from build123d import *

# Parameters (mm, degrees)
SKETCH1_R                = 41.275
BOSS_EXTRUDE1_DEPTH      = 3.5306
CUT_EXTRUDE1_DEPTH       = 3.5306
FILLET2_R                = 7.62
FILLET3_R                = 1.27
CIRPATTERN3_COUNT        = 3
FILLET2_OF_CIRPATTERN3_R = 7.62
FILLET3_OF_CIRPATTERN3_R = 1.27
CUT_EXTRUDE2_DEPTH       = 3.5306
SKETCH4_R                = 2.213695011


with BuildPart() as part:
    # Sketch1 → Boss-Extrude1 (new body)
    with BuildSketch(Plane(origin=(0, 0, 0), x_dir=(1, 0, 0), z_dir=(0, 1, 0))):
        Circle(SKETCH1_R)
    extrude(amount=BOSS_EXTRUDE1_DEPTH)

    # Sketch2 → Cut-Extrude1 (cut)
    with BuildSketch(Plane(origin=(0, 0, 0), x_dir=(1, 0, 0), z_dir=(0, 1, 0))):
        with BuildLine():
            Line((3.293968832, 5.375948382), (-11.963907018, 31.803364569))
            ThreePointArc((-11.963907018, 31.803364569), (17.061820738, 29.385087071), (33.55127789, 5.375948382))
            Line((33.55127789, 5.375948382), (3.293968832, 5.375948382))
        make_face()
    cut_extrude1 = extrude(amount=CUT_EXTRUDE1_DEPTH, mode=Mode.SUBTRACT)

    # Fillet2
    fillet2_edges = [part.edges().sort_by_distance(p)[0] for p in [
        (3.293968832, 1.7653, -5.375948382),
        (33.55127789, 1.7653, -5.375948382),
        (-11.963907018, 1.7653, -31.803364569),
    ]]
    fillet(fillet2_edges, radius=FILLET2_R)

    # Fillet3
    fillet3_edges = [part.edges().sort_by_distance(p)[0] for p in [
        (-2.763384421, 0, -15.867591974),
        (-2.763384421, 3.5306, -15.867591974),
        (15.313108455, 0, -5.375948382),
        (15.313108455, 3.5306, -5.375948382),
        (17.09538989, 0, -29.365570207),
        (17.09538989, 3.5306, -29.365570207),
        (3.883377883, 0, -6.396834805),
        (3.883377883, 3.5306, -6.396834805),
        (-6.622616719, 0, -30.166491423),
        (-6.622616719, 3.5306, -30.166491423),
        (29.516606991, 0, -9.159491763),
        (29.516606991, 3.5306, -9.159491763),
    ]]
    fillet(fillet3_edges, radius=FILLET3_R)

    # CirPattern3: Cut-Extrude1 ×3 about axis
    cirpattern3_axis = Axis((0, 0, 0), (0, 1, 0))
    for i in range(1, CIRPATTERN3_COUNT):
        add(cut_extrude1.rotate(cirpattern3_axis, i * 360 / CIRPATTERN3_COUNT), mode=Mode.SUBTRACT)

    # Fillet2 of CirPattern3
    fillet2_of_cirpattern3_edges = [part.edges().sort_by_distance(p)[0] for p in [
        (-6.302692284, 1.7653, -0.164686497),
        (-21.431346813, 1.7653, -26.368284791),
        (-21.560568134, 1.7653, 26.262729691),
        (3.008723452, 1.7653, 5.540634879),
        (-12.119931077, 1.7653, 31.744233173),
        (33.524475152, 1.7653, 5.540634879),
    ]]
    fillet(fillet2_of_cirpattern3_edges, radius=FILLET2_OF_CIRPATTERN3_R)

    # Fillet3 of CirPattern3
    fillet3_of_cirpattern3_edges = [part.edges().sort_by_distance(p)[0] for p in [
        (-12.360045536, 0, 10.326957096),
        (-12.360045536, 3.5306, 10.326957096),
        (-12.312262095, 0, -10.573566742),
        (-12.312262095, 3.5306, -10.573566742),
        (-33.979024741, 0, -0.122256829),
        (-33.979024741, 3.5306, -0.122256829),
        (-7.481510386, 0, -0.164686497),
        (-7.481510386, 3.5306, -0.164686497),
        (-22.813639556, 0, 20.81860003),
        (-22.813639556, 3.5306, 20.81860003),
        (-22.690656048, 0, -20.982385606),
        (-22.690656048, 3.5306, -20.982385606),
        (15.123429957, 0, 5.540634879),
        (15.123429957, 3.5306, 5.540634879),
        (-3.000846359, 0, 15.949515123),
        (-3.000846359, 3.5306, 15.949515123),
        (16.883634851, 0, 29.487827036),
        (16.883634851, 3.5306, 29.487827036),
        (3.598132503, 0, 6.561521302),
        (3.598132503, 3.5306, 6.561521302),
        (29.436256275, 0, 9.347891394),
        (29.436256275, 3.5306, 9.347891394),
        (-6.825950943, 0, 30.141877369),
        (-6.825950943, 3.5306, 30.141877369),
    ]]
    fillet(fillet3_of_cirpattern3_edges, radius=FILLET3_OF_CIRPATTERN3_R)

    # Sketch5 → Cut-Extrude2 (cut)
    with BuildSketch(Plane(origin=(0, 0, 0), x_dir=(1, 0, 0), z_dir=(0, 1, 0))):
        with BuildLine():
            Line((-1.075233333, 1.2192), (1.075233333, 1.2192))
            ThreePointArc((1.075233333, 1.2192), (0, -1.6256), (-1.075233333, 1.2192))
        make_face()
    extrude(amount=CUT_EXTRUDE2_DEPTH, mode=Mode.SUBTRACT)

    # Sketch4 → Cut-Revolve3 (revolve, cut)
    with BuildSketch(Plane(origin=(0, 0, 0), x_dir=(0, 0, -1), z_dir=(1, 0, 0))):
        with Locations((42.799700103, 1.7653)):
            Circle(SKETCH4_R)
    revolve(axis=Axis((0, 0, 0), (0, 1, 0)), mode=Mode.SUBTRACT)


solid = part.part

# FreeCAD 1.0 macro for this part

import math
import FreeCAD as App
import Part
import Sketcher
from FreeCAD import Vector
Q = App.Units.Quantity


def edges_at(feature, points):
    """Names of the edges that pass closest to the given points."""
    edges = feature.Shape.Edges
    near = lambda p: min(range(len(edges)), key=lambda i: edges[i].distToShape(Part.Vertex(*p))[0])
    return sorted({f"Edge{near(p) + 1}" for p in points})

doc = App.newDocument("Part")
body = doc.addObject("PartDesign::Body", "Body")

# Sketch on XZ plane
sketch1 = body.newObject("Sketcher::SketchObject", "Sketch")
sketch1.AttachmentSupport = (doc.getObject("XZ_Plane"), [""])
sketch1.MapMode = "FlatFace"
sketch1.addGeometry(Part.Circle(Vector(0, 0, 0), Vector(0, 0, 1), 41), False)
sketch1.addConstraint(Sketcher.Constraint("Coincident", 0, 3, -1, 1))
sketch1.addConstraint(Sketcher.Constraint("Diameter", 0, Q("3.25 in")))
pad1 = body.newObject("PartDesign::Pad", "Pad")
pad1.Profile = sketch1
pad1.Length = Q("0.139 in")
pad1.Reversed = True

# Sketch on XZ plane
sketch2 = body.newObject("Sketcher::SketchObject", "Sketch001")
sketch2.AttachmentSupport = (doc.getObject("XZ_Plane"), [""])
sketch2.MapMode = "FlatFace"
sketch2.addGeometry(Part.LineSegment(Vector(-12, -32, 0), Vector(3, -5, 0)), False)
sketch2.addGeometry(Part.LineSegment(Vector(3, -5, 0), Vector(34, -5, 0)), False)
sketch2.addGeometry(Part.ArcOfCircle(Part.Circle(Vector(0, 0, 0), Vector(0, 0, 1), 34), math.radians(-111), math.radians(-9)), False)
sketch2.addConstraint(Sketcher.Constraint("Coincident", 0, 2, 1, 1))
sketch2.addConstraint(Sketcher.Constraint("Coincident", 1, 2, 2, 2))
sketch2.addConstraint(Sketcher.Constraint("Coincident", 2, 1, 0, 1))
sketch2.addConstraint(Sketcher.Constraint("Horizontal", 1))
sketch2.addConstraint(Sketcher.Constraint("Coincident", 2, 3, -1, 1))
sketch2.addConstraint(Sketcher.Constraint("Angle", 0, Q("60 deg")))
sketch2.addConstraint(Sketcher.Constraint("Radius", 2, 33.979245))
sketch2.addConstraint(Sketcher.Constraint("DistanceX", 1, 1, 1, 2, 30.257309))
sketch2.addConstraint(Sketcher.Constraint("Distance", 0, 30.515752))
pocket1 = body.newObject("PartDesign::Pocket", "Pocket")
pocket1.Profile = sketch2
pocket1.Length = Q("0.139 in")
doc.recompute()

fillet = body.newObject("PartDesign::Fillet", "Fillet")
fillet.Base = (pocket1, edges_at(pocket1, [(3.294, 1.765, -5.376), (33.551, 1.765, -5.376), (-11.964, 1.765, -31.803)]))
fillet.Radius = Q("0.3 in")
doc.recompute()

fillet2 = body.newObject("PartDesign::Fillet", "Fillet001")
fillet2.Base = (fillet, edges_at(fillet, [
    (-2.763, 0, -15.868),
    (-2.763, 3.531, -15.868),
    (15.313, 0, -5.376),
    (15.313, 3.531, -5.376),
    (17.095, 0, -29.366),
    (17.095, 3.531, -29.366),
    (3.883, 0, -6.397),
    (3.883, 3.531, -6.397),
    (-6.623, 0, -30.166),
    (-6.623, 3.531, -30.166),
    (29.517, 0, -9.159),
    (29.517, 3.531, -9.159),
]))
fillet2.Radius = Q("0.05 in")
doc.recompute()

polarpattern = body.newObject("PartDesign::PolarPattern", "PolarPattern")
polarpattern.Originals = [pocket1]
polarpattern.Axis = (doc.getObject("Y_Axis"), [""])
polarpattern.Angle = 360
polarpattern.Occurrences = 3
body.Tip = polarpattern
doc.recompute()

fillet3 = body.newObject("PartDesign::Fillet", "Fillet002")
fillet3.Base = (polarpattern, edges_at(polarpattern, [
    (-6.303, 1.765, -0.165),
    (-21.431, 1.765, -26.368),
    (-21.561, 1.765, 26.263),
    (3.009, 1.765, 5.541),
    (-12.12, 1.765, 31.744),
    (33.524, 1.765, 5.541),
]))
fillet3.Radius = Q("0.3 in")
doc.recompute()

fillet4 = body.newObject("PartDesign::Fillet", "Fillet003")
fillet4.Base = (fillet3, edges_at(fillet3, [
    (-12.36, 0, 10.327),
    (-12.36, 3.531, 10.327),
    (-12.312, 0, -10.574),
    (-12.312, 3.531, -10.574),
    (-33.979, 0, -0.122),
    (-33.979, 3.531, -0.122),
    (-7.482, 0, -0.165),
    (-7.482, 3.531, -0.165),
    (-22.814, 0, 20.819),
    (-22.814, 3.531, 20.819),
    (-22.691, 0, -20.982),
    (-22.691, 3.531, -20.982),
    (15.123, 0, 5.541),
    (15.123, 3.531, 5.541),
    (-3.001, 0, 15.95),
    (-3.001, 3.531, 15.95),
    (16.884, 0, 29.488),
    (16.884, 3.531, 29.488),
    (3.598, 0, 6.562),
    (3.598, 3.531, 6.562),
    (29.436, 0, 9.348),
    (29.436, 3.531, 9.348),
    (-6.826, 0, 30.142),
    (-6.826, 3.531, 30.142),
]))
fillet4.Radius = Q("0.05 in")

# Sketch on XZ plane
sketch3 = body.newObject("Sketcher::SketchObject", "Sketch002")
sketch3.AttachmentSupport = (doc.getObject("XZ_Plane"), [""])
sketch3.MapMode = "FlatFace"
sketch3.addGeometry(Part.LineSegment(Vector(1.1, -1.2, 0), Vector(-1.1, -1.2, 0)), False)
sketch3.addGeometry(Part.ArcOfCircle(Part.Circle(Vector(0, 0, 0), Vector(0, 0, 1), 1.6), math.radians(-49), math.radians(229)), False)
sketch3.addConstraint(Sketcher.Constraint("Coincident", 0, 1, 1, 1))
sketch3.addConstraint(Sketcher.Constraint("Coincident", 1, 2, 0, 2))
sketch3.addConstraint(Sketcher.Constraint("Horizontal", 0))
sketch3.addConstraint(Sketcher.Constraint("Coincident", 1, 3, -1, 1))
sketch3.addConstraint(Sketcher.Constraint("Radius", 1, Q("0.064 in")))
sketch3.addConstraint(Sketcher.Constraint("DistanceY", 0, 1, -1, 1, Q("0.048 in")))
pocket2 = body.newObject("PartDesign::Pocket", "Pocket001")
pocket2.Profile = sketch3
pocket2.Length = Q("0.139 in")

# Sketch on YZ plane
sketch4 = body.newObject("Sketcher::SketchObject", "Sketch003")
sketch4.AttachmentSupport = (doc.getObject("YZ_Plane"), [""])
sketch4.MapMode = "FlatFace"
sketch4.addGeometry(Part.Circle(Vector(1.8, -42.8, 0), Vector(0, 0, 1), 2.2), False)
sketch4.addConstraint(Sketcher.Constraint("Diameter", 0, 4.42739))
sketch4.addConstraint(Sketcher.Constraint("DistanceX", -1, 1, 0, 3, Q("0.0695 in")))
sketch4.addConstraint(Sketcher.Constraint("DistanceY", 0, 3, -1, 1, 42.7997))
groove = body.newObject("PartDesign::Groove", "Groove")
groove.Profile = sketch4
groove.ReferenceAxis = (sketch4, ["H_Axis"])
groove.Angle = 360

doc.recompute()
